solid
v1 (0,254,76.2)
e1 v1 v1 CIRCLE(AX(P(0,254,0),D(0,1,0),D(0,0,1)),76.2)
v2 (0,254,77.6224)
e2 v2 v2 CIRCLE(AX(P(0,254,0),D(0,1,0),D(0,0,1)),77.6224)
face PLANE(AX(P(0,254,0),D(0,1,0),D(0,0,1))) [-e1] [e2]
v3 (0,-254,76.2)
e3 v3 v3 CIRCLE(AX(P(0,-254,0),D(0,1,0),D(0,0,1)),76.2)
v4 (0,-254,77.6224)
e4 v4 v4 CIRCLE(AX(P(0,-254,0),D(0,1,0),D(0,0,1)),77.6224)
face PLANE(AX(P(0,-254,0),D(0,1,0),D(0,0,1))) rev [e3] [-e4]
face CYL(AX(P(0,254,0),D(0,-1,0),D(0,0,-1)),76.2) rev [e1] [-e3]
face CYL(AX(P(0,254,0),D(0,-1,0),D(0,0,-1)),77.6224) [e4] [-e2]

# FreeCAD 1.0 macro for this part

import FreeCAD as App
import Part
import Sketcher
from FreeCAD import Vector
Q = App.Units.Quantity

doc = App.newDocument("Part")
body = doc.addObject("PartDesign::Body", "Body")

sketch1 = doc.addObject("Sketcher::SketchObject", "Sketch")
body.addObject(sketch1)
sketch1.AttachmentSupport = (doc.XZ_Plane, [""])
sketch1.MapMode = "FlatFace"
sketch1.addGeometry([
    Part.Circle(Vector(0, 0, 0), Vector(0, 0, 1), 77.6224),
    Part.Circle(Vector(0, 0, 0), Vector(0, 0, 1), 76.2),
], False)
sketch1.addConstraint([
    Sketcher.Constraint("Coincident", 0, 3, -1, 1),
    Sketcher.Constraint("Coincident", 1, 3, -1, 1),
    Sketcher.Constraint("Diameter", 1, Q("6 in")),
    Sketcher.Constraint("Diameter", 0, Q("6.112 in")),
])
pad1 = doc.addObject("PartDesign::Pad", "Pad")
body.addObject(pad1)
pad1.Profile = sketch1
pad1.Length = Q("20 in")
pad1.Midplane = True

doc.recompute()
